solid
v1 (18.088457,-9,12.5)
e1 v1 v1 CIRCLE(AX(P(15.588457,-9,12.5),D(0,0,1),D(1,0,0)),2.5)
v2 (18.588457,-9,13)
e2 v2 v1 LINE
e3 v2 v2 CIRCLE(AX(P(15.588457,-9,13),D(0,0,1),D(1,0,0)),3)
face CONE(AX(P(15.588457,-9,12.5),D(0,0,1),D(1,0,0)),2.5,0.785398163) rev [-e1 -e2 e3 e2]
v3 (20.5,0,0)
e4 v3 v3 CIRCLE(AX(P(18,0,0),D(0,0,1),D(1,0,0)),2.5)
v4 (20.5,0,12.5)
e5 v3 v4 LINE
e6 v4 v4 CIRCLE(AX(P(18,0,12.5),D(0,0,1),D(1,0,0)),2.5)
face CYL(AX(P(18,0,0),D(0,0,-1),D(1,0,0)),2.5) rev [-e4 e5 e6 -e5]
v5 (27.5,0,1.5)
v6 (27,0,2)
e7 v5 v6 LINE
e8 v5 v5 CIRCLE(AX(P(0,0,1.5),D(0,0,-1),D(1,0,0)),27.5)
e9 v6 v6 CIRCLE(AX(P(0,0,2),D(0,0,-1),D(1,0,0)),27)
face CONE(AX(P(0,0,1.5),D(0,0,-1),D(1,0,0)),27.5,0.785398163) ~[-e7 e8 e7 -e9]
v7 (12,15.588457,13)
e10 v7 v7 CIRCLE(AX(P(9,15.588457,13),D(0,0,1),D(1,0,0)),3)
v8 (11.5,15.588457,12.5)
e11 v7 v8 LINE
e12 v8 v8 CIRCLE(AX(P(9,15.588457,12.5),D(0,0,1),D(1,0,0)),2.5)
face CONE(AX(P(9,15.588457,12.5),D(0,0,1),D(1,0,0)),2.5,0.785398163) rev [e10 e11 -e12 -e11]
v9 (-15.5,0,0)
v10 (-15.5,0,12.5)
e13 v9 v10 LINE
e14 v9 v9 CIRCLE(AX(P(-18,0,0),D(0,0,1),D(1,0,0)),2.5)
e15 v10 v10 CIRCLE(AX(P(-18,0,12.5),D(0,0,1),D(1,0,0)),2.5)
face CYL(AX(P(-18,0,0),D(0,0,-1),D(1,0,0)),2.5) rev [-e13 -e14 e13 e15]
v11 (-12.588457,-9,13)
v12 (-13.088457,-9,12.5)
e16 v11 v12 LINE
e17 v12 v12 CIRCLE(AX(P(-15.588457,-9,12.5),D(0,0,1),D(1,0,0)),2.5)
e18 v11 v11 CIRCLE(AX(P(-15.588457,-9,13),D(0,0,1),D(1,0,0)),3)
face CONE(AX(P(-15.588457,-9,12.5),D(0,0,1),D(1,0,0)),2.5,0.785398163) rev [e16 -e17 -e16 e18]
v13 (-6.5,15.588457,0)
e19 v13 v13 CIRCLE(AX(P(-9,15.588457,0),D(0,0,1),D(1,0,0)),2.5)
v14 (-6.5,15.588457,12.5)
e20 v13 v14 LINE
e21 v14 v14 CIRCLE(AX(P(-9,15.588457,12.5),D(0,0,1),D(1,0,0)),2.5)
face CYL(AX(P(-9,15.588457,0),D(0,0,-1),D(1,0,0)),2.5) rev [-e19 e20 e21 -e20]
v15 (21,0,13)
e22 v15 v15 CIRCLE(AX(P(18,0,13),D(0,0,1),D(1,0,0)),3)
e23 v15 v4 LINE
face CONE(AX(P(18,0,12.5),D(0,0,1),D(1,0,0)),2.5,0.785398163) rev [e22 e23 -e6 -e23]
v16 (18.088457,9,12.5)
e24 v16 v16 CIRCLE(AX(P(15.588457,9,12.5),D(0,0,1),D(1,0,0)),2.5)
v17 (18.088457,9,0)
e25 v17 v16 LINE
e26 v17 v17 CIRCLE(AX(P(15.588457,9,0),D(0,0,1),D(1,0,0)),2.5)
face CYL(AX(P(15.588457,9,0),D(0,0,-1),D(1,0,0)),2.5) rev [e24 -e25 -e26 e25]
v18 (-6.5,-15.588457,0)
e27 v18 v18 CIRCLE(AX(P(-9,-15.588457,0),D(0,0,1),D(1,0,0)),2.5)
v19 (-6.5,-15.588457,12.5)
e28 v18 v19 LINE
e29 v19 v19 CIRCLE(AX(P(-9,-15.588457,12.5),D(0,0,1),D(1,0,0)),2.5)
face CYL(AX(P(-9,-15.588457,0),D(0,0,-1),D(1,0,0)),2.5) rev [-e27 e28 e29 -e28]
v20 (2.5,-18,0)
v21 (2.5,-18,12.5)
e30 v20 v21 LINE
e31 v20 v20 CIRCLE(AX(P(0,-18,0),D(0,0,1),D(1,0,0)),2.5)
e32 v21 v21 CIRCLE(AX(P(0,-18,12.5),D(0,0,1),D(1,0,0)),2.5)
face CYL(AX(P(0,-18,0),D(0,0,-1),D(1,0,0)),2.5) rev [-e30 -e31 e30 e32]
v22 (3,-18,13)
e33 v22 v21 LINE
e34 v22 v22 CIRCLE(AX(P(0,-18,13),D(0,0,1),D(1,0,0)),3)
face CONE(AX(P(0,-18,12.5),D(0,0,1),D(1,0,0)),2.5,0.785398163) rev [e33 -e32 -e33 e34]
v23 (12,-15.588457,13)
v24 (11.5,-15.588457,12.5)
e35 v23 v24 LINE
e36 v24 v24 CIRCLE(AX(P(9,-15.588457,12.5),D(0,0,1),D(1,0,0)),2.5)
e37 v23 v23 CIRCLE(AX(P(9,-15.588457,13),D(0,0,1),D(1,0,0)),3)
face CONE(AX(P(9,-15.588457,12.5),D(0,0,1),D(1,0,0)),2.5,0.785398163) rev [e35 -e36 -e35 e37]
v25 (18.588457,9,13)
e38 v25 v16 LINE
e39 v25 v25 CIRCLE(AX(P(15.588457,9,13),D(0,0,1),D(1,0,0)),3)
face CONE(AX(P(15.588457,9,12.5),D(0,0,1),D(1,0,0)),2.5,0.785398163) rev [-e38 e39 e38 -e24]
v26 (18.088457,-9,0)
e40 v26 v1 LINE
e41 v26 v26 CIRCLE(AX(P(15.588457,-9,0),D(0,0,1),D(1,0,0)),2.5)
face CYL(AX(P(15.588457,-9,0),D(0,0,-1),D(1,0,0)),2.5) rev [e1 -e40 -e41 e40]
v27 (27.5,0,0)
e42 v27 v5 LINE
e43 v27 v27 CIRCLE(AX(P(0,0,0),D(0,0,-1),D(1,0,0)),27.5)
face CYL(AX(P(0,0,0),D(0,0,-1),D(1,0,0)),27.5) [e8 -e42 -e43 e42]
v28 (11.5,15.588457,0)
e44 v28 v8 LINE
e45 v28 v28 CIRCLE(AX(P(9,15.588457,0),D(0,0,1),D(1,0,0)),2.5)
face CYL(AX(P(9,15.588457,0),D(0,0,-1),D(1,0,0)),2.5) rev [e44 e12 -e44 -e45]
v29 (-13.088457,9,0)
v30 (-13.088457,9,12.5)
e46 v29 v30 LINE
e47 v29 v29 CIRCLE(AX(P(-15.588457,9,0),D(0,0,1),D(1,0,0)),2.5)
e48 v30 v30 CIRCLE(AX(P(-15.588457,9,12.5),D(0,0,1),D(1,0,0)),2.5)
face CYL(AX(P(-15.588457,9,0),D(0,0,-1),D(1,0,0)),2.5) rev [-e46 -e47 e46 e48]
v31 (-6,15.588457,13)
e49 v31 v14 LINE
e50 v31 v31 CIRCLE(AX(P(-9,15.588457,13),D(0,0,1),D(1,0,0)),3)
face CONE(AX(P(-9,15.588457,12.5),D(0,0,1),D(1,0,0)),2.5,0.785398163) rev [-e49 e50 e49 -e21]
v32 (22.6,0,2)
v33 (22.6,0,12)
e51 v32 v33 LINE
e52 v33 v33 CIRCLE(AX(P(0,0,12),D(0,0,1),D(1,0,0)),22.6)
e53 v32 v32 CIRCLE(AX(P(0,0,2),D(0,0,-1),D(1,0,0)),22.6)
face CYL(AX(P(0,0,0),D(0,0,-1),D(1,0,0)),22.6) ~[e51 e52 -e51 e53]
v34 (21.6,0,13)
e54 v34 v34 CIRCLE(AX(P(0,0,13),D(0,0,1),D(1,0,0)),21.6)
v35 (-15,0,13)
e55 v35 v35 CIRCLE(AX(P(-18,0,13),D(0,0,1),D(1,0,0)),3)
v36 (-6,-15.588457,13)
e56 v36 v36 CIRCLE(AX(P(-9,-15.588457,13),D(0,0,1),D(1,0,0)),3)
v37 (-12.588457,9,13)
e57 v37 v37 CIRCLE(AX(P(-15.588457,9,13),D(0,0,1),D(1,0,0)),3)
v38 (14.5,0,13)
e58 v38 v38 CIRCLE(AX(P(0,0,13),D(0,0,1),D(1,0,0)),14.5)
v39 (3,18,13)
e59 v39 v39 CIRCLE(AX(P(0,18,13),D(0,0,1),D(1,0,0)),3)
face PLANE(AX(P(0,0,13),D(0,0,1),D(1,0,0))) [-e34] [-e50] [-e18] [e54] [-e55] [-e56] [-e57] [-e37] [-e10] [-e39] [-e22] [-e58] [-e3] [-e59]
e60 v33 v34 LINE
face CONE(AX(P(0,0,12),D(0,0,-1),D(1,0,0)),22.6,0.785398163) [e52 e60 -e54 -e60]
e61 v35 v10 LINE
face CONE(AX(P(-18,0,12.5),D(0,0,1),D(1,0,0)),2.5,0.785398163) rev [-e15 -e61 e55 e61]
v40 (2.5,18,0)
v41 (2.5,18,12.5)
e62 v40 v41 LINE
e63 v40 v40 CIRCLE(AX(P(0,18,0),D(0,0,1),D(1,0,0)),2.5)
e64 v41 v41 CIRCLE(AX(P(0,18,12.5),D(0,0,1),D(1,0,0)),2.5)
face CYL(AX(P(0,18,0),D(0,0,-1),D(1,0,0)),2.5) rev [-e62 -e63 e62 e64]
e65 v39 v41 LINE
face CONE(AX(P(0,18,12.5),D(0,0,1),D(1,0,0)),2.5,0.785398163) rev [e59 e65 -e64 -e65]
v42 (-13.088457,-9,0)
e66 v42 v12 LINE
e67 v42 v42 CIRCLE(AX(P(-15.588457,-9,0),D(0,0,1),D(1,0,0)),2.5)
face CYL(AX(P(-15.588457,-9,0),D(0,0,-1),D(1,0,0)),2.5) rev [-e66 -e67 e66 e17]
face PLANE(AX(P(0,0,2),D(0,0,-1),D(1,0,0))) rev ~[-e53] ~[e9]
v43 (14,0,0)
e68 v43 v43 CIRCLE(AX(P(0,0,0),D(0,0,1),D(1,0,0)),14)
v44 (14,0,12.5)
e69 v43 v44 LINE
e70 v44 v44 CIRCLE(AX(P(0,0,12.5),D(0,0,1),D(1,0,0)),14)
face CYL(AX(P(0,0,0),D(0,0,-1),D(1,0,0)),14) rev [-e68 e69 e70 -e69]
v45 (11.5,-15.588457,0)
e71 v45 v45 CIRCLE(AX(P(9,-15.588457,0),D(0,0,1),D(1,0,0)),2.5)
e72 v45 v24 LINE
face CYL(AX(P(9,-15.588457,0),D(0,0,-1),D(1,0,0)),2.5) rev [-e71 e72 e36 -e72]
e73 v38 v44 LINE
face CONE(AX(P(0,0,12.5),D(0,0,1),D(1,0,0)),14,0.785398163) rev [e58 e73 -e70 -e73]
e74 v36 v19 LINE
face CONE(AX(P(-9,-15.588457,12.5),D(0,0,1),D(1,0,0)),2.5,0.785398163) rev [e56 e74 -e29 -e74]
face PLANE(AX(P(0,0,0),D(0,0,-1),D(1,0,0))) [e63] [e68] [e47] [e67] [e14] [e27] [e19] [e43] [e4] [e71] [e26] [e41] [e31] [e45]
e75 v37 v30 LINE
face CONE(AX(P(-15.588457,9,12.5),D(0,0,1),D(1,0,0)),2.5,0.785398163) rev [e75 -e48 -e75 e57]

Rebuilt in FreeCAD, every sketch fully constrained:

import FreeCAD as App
import Part
import Sketcher
Q = App.Units.Quantity


def edges_at(feature, points):
    """Names of the edges that pass closest to the given points."""
    edges = feature.Shape.Edges
    near = lambda p: min(range(len(edges)), key=lambda i: edges[i].distToShape(Part.Vertex(*p))[0])
    return sorted({f"Edge{near(p) + 1}" for p in points})

doc = App.newDocument("Part")
body = doc.addObject("PartDesign::Body", "Body")

# Sketch on XY plane
sketch1 = doc.addObject("Sketcher::SketchObject", "Sketch")
body.addObject(sketch1)
sketch1.AttachmentSupport = (doc.XY_Plane, [""])
sketch1.MapMode = "FlatFace"
sketch1.addGeometry([
    Part.Circle(App.Vector(0, 0, 0), App.Vector(0, 0, 1), 22.6),  # 0
    Part.Circle(App.Vector(-9, -15.588457, 0), App.Vector(0, 0, 1), 2.5),  # 1
    Part.Circle(App.Vector(-15.588457, -9, 0), App.Vector(0, 0, 1), 2.5),  # 2
    Part.Circle(App.Vector(0, -18, 0), App.Vector(0, 0, 1), 2.5),  # 3
    Part.Circle(App.Vector(9, -15.588457, 0), App.Vector(0, 0, 1), 2.5),  # 4
    Part.Circle(App.Vector(15.588457, -9, 0), App.Vector(0, 0, 1), 2.5),  # 5
    Part.Circle(App.Vector(-18, 0, 0), App.Vector(0, 0, 1), 2.5),  # 6
    Part.Circle(App.Vector(-15.588457, 9, 0), App.Vector(0, 0, 1), 2.5),  # 7
    Part.Circle(App.Vector(-9, 15.588457, 0), App.Vector(0, 0, 1), 2.5),  # 8
    Part.Circle(App.Vector(0, 0, 0), App.Vector(0, 0, 1), 14),  # 9
    Part.Circle(App.Vector(18, 0, 0), App.Vector(0, 0, 1), 2.5),  # 10
    Part.Circle(App.Vector(15.588457, 9, 0), App.Vector(0, 0, 1), 2.5),  # 11
    Part.Circle(App.Vector(0, 18, 0), App.Vector(0, 0, 1), 2.5),  # 12
    Part.Circle(App.Vector(9, 15.588457, 0), App.Vector(0, 0, 1), 2.5),  # 13
], False)
sketch1.addConstraint([
    Sketcher.Constraint("Coincident", 0, 3, -1, 1),
    Sketcher.Constraint("Coincident", 9, 3, -1, 1),
    Sketcher.Constraint("Equal", 1, 2),
    Sketcher.Constraint("Equal", 2, 3),
    Sketcher.Constraint("Equal", 3, 4),
    Sketcher.Constraint("Equal", 4, 5),
    Sketcher.Constraint("Equal", 5, 6),
    Sketcher.Constraint("Equal", 6, 7),
    Sketcher.Constraint("Equal", 7, 8),
    Sketcher.Constraint("Equal", 8, 10),
    Sketcher.Constraint("Equal", 10, 11),
    Sketcher.Constraint("Equal", 11, 12),
    Sketcher.Constraint("Equal", 12, 13),
    Sketcher.Constraint("Symmetric", 5, 3, 7, 3, -1, 1),
    Sketcher.Constraint("Symmetric", 4, 3, 8, 3, -1, 1),
    Sketcher.Constraint("Symmetric", 6, 3, 10, 3, -1, 1),
    Sketcher.Constraint("Symmetric", 2, 3, 11, 3, -1, 1),
    Sketcher.Constraint("Symmetric", 3, 3, 12, 3, -1, 1),
    Sketcher.Constraint("Symmetric", 1, 3, 13, 3, -1, 1),
    Sketcher.Constraint("Symmetric", 1, 3, 4, 3, -2),
    Sketcher.Constraint("Symmetric", 2, 3, 5, 3, -2),
    Sketcher.Constraint("PointOnObject", 3, 3, -2),
    Sketcher.Constraint("PointOnObject", 6, 3, -1),
    Sketcher.Constraint("Diameter", 1, Q("5 mm")),
    Sketcher.Constraint("Diameter", 9, Q("28 mm")),
    Sketcher.Constraint("Diameter", 0, Q("45.2 mm")),
    Sketcher.Constraint("DistanceX", 1, 3, -1, 1, Q("9 mm")),
    Sketcher.Constraint("DistanceY", 2, 3, -1, 1, Q("9 mm")),
    Sketcher.Constraint("DistanceY", 3, 3, -1, 1, Q("18 mm")),
    Sketcher.Constraint("DistanceX", 6, 3, -1, 1, Q("18 mm")),
    Sketcher.Constraint("DistanceY", 1, 3, -1, 1, Q("15.588457 mm")),
    Sketcher.Constraint("DistanceX", 2, 3, -1, 1, Q("15.588457 mm")),
])
pad1 = doc.addObject("PartDesign::Pad", "Pad")
body.addObject(pad1)
pad1.Profile = sketch1
pad1.Length = 13

# Sketch on XY plane
sketch2 = doc.addObject("Sketcher::SketchObject", "Sketch001")
body.addObject(sketch2)
sketch2.AttachmentSupport = (doc.XY_Plane, [""])
sketch2.MapMode = "FlatFace"
sketch2.addGeometry([
    Part.Circle(App.Vector(0, 0, 0), App.Vector(0, 0, 1), 27.5),
    Part.Circle(App.Vector(0, 0, 0), App.Vector(0, 0, 1), 22.5),
], False)
sketch2.addConstraint([
    Sketcher.Constraint("Coincident", 0, 3, -1, 1),
    Sketcher.Constraint("Coincident", 1, 3, -1, 1),
    Sketcher.Constraint("Diameter", 0, Q("55 mm")),
    Sketcher.Constraint("Diameter", 1, Q("45 mm")),
])
pad2 = doc.addObject("PartDesign::Pad", "Pad001")
body.addObject(pad2)
pad2.Profile = sketch2
pad2.Length = 2
doc.recompute()

chamfer = doc.addObject("PartDesign::Chamfer", "Chamfer")
body.addObject(chamfer)
chamfer.Base = (pad2, edges_at(pad2, [(-27.5, 0, 2)]))
chamfer.Size = 0.5
doc.recompute()

chamfer2 = doc.addObject("PartDesign::Chamfer", "Chamfer001")
body.addObject(chamfer2)
chamfer2.Base = (chamfer, edges_at(chamfer, [(-22.6, 0, 13)]))
chamfer2.Size = 1
doc.recompute()

chamfer3 = doc.addObject("PartDesign::Chamfer", "Chamfer002")
body.addObject(chamfer3)
chamfer3.Base = (chamfer2, edges_at(chamfer2, [
    (13.088, -9, 13),
    (-11.5, 15.588, 13),
    (-18.088, 9, 13),
    (-11.5, -15.588, 13),
    (6.5, 15.588, 13),
    (-18.088, -9, 13),
    (-2.5, 18, 13),
    (-20.5, 0, 13),
    (6.5, -15.588, 13),
    (15.5, 0, 13),
    (-2.5, -18, 13),
    (13.088, 9, 13),
]))
chamfer3.Size = 0.5
doc.recompute()

chamfer4 = doc.addObject("PartDesign::Chamfer", "Chamfer003")
body.addObject(chamfer4)
chamfer4.Base = (chamfer3, edges_at(chamfer3, [(-14, 0, 13)]))
chamfer4.Size = 0.5

doc.recompute()
